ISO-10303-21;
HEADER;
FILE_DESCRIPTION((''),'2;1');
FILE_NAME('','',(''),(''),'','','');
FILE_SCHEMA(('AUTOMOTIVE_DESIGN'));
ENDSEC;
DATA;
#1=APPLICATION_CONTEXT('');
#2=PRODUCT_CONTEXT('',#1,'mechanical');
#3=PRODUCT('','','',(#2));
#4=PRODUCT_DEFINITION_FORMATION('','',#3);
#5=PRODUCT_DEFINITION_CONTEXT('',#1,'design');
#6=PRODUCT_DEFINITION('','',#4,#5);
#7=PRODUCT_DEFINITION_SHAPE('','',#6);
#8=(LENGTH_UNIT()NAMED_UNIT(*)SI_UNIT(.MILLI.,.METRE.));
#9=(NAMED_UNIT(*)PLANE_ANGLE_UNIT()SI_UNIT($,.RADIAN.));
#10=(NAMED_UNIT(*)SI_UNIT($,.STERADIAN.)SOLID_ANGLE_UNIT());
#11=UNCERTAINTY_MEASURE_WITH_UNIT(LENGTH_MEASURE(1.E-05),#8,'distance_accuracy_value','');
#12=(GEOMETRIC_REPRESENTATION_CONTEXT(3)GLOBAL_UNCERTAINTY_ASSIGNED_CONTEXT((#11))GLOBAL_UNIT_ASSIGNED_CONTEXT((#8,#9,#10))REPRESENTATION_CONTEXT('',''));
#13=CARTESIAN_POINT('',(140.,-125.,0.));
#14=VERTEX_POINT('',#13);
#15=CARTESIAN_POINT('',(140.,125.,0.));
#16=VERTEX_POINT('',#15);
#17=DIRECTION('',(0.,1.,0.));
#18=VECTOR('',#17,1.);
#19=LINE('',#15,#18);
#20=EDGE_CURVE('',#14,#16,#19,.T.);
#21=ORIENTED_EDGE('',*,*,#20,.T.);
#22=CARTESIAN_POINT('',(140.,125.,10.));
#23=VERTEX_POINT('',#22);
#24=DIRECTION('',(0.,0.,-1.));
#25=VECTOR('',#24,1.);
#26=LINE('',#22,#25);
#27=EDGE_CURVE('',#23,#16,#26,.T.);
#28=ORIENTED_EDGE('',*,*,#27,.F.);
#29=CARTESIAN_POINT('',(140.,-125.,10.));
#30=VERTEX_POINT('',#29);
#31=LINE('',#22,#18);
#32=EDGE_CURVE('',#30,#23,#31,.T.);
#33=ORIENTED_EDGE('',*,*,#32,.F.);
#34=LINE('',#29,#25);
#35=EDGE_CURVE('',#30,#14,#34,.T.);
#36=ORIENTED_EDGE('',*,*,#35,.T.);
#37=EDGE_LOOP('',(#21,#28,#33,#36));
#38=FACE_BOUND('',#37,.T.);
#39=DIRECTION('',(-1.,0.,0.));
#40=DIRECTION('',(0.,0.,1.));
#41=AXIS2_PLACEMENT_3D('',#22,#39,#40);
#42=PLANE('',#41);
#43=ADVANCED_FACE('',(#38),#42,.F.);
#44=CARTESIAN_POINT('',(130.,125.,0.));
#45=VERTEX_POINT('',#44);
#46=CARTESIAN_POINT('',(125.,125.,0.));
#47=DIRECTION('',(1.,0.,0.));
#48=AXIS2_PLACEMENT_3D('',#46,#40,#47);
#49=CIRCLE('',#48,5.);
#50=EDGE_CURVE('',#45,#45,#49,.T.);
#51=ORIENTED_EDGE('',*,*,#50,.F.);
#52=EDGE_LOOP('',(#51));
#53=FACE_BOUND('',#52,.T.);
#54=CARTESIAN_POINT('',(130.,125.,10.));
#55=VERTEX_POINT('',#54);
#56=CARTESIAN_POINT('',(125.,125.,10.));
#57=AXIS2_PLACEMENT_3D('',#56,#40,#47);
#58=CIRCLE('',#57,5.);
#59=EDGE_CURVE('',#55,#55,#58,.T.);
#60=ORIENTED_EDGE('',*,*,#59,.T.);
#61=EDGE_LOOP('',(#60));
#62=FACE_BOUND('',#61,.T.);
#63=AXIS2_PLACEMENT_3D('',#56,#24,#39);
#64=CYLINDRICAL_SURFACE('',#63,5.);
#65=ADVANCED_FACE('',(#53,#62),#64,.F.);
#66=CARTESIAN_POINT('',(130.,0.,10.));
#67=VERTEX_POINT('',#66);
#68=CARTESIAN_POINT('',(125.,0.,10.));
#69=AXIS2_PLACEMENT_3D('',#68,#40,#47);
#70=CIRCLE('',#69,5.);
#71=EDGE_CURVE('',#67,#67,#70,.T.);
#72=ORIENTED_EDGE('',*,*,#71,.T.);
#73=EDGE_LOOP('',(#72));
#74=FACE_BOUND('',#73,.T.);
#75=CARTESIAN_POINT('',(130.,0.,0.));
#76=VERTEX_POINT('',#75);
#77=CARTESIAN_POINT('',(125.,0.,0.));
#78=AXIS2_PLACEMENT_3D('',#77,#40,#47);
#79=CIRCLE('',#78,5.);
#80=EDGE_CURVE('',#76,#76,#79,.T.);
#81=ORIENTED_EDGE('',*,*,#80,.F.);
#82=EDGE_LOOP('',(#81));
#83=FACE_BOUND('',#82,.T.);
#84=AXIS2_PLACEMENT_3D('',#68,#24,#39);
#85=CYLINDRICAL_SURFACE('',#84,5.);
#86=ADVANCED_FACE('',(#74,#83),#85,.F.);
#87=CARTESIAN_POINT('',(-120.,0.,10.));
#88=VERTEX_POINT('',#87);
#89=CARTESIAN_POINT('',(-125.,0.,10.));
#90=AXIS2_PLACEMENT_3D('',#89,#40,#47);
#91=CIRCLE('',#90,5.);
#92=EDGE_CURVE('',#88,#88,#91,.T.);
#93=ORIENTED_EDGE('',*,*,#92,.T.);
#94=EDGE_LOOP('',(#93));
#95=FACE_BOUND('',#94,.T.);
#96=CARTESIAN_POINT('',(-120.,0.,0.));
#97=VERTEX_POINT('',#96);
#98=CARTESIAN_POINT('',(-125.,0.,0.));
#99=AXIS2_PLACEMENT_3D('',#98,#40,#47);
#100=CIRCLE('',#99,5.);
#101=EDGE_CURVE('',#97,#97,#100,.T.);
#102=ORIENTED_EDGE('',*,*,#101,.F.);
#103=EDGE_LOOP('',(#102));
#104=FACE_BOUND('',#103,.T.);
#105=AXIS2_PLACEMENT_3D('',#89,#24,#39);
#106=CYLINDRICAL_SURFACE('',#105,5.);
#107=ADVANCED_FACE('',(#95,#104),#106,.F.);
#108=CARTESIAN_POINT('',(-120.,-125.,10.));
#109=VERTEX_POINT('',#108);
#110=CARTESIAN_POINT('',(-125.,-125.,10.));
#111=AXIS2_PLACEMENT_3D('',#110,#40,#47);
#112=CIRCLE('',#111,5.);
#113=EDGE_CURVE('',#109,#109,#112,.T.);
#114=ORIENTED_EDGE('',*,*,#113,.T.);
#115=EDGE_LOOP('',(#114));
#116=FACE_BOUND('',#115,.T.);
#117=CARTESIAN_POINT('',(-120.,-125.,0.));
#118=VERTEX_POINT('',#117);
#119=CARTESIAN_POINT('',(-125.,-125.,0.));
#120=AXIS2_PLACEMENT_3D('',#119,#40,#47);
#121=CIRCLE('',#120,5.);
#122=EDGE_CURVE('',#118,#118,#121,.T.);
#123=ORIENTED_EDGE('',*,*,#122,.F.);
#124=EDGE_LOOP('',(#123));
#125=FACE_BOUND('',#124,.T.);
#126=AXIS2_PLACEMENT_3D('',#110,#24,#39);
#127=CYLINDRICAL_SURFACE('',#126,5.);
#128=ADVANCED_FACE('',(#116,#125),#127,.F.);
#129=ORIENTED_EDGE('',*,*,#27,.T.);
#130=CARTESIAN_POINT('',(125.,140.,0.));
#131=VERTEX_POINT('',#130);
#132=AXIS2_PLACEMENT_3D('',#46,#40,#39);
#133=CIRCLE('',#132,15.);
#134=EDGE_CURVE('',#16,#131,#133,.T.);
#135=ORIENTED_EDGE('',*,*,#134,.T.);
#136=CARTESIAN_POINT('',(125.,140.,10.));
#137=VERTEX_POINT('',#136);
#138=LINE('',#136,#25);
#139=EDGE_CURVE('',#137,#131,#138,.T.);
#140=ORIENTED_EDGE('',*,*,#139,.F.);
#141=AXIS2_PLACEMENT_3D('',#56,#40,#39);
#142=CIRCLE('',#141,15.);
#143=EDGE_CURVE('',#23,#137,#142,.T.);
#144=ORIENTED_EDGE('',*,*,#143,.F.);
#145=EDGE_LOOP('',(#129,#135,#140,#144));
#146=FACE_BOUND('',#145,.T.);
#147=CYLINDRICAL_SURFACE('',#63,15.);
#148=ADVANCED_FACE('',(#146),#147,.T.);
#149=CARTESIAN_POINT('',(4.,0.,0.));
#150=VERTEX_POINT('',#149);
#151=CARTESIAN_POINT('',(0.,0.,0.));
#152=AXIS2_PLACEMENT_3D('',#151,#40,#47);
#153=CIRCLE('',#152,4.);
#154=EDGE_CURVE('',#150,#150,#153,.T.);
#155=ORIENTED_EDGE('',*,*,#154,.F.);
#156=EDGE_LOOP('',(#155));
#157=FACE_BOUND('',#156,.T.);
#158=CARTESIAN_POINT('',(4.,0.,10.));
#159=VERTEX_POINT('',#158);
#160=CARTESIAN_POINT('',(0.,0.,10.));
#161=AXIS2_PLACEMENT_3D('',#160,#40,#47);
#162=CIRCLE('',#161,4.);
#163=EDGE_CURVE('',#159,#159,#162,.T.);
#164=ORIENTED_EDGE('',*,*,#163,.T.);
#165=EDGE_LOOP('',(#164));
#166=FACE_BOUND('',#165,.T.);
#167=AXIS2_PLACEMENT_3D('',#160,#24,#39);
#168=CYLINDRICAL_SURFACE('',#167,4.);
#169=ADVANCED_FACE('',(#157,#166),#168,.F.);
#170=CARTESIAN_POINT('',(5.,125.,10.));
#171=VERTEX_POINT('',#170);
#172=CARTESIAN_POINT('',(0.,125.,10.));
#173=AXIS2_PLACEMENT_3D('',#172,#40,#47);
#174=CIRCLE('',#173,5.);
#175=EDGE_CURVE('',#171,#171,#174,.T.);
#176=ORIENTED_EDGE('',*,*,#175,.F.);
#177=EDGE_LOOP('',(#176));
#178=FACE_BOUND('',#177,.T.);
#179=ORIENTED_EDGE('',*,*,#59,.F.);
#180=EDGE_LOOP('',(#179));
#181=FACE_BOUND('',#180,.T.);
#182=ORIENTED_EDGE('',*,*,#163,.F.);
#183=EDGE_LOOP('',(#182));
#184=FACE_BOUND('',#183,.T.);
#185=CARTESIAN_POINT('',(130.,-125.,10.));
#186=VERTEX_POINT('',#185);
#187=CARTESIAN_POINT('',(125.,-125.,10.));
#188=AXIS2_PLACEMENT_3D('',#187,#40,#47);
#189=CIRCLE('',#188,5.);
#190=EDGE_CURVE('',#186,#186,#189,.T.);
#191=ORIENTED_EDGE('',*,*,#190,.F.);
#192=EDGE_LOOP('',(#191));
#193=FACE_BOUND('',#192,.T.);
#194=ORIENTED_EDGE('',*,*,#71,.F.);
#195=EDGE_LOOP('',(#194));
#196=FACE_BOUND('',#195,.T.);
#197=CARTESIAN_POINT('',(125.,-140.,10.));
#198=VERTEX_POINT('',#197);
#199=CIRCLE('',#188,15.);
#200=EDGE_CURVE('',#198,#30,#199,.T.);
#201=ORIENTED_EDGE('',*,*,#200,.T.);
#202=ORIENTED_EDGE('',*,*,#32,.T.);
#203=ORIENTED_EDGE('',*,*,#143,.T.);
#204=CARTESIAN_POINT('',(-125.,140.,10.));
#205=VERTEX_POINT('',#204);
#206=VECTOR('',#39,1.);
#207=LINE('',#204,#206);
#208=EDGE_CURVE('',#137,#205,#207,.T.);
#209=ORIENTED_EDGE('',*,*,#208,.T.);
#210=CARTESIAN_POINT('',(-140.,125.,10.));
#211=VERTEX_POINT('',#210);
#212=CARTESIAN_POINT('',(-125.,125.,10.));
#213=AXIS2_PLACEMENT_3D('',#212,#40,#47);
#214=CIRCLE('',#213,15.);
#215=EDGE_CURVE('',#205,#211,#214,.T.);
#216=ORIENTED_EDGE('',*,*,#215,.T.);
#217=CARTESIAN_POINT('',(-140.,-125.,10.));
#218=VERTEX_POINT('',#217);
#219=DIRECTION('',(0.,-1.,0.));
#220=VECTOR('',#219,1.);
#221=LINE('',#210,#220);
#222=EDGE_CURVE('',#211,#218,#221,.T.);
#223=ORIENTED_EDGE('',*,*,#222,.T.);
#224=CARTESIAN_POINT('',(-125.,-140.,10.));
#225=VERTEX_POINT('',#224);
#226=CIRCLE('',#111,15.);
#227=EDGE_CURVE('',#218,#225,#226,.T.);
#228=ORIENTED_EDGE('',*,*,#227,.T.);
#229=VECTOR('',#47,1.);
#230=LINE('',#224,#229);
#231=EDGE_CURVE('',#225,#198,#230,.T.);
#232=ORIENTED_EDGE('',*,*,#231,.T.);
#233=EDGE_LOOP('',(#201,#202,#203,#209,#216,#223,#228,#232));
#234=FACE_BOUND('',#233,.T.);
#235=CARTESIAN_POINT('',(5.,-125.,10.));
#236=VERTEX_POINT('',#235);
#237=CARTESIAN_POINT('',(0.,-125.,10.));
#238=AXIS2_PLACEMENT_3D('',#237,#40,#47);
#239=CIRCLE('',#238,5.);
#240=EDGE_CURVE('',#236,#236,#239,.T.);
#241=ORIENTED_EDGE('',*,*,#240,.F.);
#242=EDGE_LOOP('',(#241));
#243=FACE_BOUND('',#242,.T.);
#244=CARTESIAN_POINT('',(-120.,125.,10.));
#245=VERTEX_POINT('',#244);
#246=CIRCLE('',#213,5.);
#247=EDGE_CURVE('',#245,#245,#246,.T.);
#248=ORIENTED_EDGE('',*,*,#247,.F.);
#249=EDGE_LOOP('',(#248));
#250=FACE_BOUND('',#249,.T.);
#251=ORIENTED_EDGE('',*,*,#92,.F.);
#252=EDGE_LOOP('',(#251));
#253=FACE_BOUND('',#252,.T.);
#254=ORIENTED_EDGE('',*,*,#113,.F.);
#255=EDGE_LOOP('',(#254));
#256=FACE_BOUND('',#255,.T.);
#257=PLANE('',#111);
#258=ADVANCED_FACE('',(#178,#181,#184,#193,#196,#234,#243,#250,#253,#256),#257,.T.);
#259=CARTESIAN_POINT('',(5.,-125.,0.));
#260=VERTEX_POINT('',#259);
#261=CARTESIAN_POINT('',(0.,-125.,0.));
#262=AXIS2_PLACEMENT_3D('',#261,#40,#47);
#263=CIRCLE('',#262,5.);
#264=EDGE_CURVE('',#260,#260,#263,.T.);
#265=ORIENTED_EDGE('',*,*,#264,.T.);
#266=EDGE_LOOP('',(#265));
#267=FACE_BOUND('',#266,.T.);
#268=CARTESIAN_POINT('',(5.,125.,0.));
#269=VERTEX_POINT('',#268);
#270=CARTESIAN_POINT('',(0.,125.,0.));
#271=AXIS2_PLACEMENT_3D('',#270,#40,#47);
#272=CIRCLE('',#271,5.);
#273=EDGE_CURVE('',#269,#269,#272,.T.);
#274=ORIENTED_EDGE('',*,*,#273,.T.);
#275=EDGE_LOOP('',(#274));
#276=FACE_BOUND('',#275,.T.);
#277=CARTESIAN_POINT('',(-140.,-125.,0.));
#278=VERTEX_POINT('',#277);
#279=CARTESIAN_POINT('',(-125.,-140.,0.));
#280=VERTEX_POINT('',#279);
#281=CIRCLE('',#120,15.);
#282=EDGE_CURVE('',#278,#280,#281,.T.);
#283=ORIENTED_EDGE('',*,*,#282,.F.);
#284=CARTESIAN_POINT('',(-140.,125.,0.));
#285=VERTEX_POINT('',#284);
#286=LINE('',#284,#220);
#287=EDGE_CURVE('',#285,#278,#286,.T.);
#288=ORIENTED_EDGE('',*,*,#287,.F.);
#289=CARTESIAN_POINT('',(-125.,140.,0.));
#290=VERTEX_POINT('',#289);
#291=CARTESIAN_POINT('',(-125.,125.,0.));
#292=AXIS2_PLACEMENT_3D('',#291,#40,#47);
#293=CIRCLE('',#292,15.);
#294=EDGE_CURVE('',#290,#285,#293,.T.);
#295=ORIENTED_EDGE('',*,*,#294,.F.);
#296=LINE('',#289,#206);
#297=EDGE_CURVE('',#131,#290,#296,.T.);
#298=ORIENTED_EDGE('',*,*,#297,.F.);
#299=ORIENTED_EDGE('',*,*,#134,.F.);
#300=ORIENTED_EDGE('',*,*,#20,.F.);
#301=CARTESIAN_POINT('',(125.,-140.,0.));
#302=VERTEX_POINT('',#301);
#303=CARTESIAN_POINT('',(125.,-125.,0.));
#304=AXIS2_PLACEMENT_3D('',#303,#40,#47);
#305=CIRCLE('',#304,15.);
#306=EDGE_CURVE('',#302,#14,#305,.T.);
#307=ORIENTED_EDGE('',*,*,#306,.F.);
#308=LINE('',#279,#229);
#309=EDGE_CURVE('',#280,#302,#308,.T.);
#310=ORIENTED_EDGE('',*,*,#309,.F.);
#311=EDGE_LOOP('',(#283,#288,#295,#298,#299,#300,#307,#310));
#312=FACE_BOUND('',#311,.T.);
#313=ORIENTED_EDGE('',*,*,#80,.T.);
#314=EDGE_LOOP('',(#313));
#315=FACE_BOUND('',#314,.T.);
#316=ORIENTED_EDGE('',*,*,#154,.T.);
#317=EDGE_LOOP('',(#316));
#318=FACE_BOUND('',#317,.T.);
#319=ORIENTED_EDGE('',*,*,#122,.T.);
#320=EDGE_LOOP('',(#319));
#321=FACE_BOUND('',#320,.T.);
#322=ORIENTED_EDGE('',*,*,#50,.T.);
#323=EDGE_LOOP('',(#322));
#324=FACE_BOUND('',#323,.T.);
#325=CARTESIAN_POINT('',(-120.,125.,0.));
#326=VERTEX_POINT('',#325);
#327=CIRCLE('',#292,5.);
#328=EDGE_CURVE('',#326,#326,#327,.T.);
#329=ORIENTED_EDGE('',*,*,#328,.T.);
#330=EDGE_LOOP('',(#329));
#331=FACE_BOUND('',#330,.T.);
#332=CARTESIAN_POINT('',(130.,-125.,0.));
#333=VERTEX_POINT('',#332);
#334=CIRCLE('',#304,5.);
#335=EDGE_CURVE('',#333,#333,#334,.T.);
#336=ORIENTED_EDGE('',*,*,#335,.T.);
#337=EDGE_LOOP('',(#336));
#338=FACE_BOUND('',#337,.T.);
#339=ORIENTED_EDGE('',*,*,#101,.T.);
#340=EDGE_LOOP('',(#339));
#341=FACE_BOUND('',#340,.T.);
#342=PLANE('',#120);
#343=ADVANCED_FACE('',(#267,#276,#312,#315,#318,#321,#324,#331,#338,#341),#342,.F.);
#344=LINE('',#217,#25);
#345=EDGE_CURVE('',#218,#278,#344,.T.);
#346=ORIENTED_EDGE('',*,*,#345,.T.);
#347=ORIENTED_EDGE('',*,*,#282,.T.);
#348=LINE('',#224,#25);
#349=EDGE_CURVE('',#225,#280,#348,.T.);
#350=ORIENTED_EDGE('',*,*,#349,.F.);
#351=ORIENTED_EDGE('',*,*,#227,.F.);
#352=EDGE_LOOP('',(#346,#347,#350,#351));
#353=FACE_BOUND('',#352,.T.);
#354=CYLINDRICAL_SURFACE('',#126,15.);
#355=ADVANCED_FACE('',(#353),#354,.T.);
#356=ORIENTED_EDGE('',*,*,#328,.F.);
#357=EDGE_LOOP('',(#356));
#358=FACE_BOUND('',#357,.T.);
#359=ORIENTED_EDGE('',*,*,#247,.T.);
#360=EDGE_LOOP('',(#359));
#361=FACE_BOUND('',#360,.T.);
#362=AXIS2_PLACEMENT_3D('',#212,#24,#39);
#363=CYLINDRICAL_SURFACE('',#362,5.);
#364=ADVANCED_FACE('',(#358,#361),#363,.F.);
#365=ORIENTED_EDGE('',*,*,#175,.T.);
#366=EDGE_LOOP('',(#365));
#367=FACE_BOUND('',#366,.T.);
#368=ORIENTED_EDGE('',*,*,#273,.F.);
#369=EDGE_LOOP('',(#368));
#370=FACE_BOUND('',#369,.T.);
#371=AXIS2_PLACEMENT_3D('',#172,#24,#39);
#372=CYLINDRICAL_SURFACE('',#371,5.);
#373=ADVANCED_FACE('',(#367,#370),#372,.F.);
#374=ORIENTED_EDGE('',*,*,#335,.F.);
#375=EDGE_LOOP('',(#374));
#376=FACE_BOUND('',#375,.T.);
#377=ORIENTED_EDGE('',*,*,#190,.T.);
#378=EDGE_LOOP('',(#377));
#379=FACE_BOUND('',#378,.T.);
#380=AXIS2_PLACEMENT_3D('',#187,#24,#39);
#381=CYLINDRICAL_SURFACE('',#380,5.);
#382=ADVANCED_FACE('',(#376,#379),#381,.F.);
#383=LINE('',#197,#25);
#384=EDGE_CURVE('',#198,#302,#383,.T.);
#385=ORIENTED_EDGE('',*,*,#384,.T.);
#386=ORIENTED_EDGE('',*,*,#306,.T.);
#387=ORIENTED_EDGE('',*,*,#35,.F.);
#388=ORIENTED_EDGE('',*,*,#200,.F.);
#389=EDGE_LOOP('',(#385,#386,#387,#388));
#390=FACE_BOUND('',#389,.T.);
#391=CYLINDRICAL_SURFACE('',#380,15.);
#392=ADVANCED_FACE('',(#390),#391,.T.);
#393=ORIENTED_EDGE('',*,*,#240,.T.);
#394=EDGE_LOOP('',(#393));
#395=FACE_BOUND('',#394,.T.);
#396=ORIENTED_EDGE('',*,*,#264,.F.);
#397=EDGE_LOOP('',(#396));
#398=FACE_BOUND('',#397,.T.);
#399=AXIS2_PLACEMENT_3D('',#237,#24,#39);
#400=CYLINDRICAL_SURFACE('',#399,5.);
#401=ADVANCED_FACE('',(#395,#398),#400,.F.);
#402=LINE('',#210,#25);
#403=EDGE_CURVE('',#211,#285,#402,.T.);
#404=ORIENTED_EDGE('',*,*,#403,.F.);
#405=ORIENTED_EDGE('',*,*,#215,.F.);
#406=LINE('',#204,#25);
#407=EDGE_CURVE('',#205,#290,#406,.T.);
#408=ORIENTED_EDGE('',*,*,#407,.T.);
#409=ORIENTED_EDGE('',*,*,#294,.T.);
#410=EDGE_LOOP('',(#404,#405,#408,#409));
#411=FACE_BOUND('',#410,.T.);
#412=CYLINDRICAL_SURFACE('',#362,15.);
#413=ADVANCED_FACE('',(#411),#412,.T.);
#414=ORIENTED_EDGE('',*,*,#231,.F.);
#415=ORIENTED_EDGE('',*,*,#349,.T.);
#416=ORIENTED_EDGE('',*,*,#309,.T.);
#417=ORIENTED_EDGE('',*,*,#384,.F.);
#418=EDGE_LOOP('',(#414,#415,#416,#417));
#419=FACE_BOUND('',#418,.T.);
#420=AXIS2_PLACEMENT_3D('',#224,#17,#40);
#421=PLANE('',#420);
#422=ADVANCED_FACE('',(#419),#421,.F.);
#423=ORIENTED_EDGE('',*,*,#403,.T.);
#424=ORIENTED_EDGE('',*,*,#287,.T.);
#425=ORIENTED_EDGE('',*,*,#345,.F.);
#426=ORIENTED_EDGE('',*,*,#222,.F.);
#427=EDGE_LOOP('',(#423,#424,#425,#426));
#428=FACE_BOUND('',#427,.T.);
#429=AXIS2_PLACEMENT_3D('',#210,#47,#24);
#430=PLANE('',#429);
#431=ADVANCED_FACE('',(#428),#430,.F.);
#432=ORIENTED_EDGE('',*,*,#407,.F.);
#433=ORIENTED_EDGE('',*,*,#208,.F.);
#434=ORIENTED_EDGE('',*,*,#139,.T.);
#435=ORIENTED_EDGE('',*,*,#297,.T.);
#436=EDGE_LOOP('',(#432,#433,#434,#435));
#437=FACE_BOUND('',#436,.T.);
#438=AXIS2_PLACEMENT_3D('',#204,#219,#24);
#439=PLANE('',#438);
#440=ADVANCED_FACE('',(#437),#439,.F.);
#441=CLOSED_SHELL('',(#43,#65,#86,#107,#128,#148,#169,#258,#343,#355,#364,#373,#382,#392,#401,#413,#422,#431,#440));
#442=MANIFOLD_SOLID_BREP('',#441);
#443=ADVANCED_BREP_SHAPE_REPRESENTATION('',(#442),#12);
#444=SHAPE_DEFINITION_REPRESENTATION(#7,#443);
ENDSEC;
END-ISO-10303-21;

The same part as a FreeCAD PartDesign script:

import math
import FreeCAD as App
import Part
import Sketcher
from FreeCAD import Vector

doc = App.newDocument("Part")
body = doc.addObject("PartDesign::Body", "Body")

sketch1 = body.newObject("Sketcher::SketchObject", "Sketch")
sketch1.AttachmentSupport = (doc.getObject("XY_Plane"), [""])
sketch1.MapMode = "FlatFace"
sketch1.addGeometry([
    Part.LineSegment(Vector(125, 140, 0), Vector(-125, 140, 0)),
    Part.ArcOfCircle(Part.Circle(Vector(-125, 125, 0), Vector(0, 0, 1), 15), math.radians(90), math.radians(180)),
    Part.LineSegment(Vector(-140, 125, 0), Vector(-140, -125, 0)),
    Part.ArcOfCircle(Part.Circle(Vector(-125, -125, 0), Vector(0, 0, 1), 15), math.radians(180), math.radians(270)),
    Part.LineSegment(Vector(-125, -140, 0), Vector(125, -140, 0)),
    Part.ArcOfCircle(Part.Circle(Vector(125, -125, 0), Vector(0, 0, 1), 15), math.radians(-90), math.radians(0)),
    Part.LineSegment(Vector(140, -125, 0), Vector(140, 125, 0)),
    Part.ArcOfCircle(Part.Circle(Vector(125, 125, 0), Vector(0, 0, 1), 15), math.radians(0), math.radians(90)),
    Part.Circle(Vector(125, -125, 0), Vector(0, 0, 1), 5),
    Part.Circle(Vector(0, -125, 0), Vector(0, 0, 1), 5),
    Part.Circle(Vector(-125, -125, 0), Vector(0, 0, 1), 5),
    Part.Circle(Vector(125, 0, 0), Vector(0, 0, 1), 5),
    Part.Circle(Vector(125, 125, 0), Vector(0, 0, 1), 5),
    Part.Circle(Vector(0, 0, 0), Vector(0, 0, 1), 4),
    Part.Circle(Vector(-125, 0, 0), Vector(0, 0, 1), 5),
    Part.Circle(Vector(0, 125, 0), Vector(0, 0, 1), 5),
    Part.Circle(Vector(-125, 125, 0), Vector(0, 0, 1), 5),
], False)
sketch1.addConstraint([
    Sketcher.Constraint("Tangent", 0, 2, 1, 1),
    Sketcher.Constraint("Tangent", 1, 2, 2, 1),
    Sketcher.Constraint("Tangent", 2, 2, 3, 1),
    Sketcher.Constraint("Tangent", 3, 2, 4, 1),
    Sketcher.Constraint("Tangent", 4, 2, 5, 1),
    Sketcher.Constraint("Tangent", 5, 2, 6, 1),
    Sketcher.Constraint("Tangent", 6, 2, 7, 1),
    Sketcher.Constraint("Tangent", 7, 2, 0, 1),
    Sketcher.Constraint("Horizontal", 0),
    Sketcher.Constraint("Vertical", 2),
    Sketcher.Constraint("Horizontal", 4),
    Sketcher.Constraint("Vertical", 6),
    Sketcher.Constraint("Coincident", 13, 3, -1, 1),
    Sketcher.Constraint("Coincident", 8, 3, 5, 3),
    Sketcher.Constraint("Coincident", 10, 3, 3, 3),
    Sketcher.Constraint("Coincident", 12, 3, 7, 3),
    Sketcher.Constraint("Coincident", 16, 3, 1, 3),
    Sketcher.Constraint("Equal", 1, 3),
    Sketcher.Constraint("Equal", 3, 5),
    Sketcher.Constraint("Equal", 5, 7),
    Sketcher.Constraint("Equal", 8, 9),
    Sketcher.Constraint("Equal", 9, 10),
    Sketcher.Constraint("Equal", 10, 11),
    Sketcher.Constraint("Equal", 11, 12),
    Sketcher.Constraint("Equal", 12, 14),
    Sketcher.Constraint("Equal", 14, 15),
    Sketcher.Constraint("Equal", 15, 16),
    Sketcher.Constraint("Symmetric", 1, 3, 5, 3, -1, 1),
    Sketcher.Constraint("Symmetric", 11, 3, 14, 3, -1, 1),
    Sketcher.Constraint("Symmetric", 9, 3, 15, 3, -1, 1),
    Sketcher.Constraint("PointOnObject", 9, 3, -2),
    Sketcher.Constraint("PointOnObject", 11, 3, -1),
    Sketcher.Constraint("Horizontal", 8, 3, 9, 3),
    Sketcher.Constraint("Vertical", 8, 3, 11, 3),
    Sketcher.Constraint("Equal", 4, 2),
    Sketcher.Constraint("Diameter", 8, 10.0),
    Sketcher.Constraint("Diameter", 13, 8.0),
    Sketcher.Constraint("Radius", 1, 15.0),
    Sketcher.Constraint("DistanceX", 0, 2, 0, 1, 250.0),
])
pad1 = body.newObject("PartDesign::Pad", "Pad")
pad1.Profile = sketch1
pad1.Length = 10

doc.recompute()
